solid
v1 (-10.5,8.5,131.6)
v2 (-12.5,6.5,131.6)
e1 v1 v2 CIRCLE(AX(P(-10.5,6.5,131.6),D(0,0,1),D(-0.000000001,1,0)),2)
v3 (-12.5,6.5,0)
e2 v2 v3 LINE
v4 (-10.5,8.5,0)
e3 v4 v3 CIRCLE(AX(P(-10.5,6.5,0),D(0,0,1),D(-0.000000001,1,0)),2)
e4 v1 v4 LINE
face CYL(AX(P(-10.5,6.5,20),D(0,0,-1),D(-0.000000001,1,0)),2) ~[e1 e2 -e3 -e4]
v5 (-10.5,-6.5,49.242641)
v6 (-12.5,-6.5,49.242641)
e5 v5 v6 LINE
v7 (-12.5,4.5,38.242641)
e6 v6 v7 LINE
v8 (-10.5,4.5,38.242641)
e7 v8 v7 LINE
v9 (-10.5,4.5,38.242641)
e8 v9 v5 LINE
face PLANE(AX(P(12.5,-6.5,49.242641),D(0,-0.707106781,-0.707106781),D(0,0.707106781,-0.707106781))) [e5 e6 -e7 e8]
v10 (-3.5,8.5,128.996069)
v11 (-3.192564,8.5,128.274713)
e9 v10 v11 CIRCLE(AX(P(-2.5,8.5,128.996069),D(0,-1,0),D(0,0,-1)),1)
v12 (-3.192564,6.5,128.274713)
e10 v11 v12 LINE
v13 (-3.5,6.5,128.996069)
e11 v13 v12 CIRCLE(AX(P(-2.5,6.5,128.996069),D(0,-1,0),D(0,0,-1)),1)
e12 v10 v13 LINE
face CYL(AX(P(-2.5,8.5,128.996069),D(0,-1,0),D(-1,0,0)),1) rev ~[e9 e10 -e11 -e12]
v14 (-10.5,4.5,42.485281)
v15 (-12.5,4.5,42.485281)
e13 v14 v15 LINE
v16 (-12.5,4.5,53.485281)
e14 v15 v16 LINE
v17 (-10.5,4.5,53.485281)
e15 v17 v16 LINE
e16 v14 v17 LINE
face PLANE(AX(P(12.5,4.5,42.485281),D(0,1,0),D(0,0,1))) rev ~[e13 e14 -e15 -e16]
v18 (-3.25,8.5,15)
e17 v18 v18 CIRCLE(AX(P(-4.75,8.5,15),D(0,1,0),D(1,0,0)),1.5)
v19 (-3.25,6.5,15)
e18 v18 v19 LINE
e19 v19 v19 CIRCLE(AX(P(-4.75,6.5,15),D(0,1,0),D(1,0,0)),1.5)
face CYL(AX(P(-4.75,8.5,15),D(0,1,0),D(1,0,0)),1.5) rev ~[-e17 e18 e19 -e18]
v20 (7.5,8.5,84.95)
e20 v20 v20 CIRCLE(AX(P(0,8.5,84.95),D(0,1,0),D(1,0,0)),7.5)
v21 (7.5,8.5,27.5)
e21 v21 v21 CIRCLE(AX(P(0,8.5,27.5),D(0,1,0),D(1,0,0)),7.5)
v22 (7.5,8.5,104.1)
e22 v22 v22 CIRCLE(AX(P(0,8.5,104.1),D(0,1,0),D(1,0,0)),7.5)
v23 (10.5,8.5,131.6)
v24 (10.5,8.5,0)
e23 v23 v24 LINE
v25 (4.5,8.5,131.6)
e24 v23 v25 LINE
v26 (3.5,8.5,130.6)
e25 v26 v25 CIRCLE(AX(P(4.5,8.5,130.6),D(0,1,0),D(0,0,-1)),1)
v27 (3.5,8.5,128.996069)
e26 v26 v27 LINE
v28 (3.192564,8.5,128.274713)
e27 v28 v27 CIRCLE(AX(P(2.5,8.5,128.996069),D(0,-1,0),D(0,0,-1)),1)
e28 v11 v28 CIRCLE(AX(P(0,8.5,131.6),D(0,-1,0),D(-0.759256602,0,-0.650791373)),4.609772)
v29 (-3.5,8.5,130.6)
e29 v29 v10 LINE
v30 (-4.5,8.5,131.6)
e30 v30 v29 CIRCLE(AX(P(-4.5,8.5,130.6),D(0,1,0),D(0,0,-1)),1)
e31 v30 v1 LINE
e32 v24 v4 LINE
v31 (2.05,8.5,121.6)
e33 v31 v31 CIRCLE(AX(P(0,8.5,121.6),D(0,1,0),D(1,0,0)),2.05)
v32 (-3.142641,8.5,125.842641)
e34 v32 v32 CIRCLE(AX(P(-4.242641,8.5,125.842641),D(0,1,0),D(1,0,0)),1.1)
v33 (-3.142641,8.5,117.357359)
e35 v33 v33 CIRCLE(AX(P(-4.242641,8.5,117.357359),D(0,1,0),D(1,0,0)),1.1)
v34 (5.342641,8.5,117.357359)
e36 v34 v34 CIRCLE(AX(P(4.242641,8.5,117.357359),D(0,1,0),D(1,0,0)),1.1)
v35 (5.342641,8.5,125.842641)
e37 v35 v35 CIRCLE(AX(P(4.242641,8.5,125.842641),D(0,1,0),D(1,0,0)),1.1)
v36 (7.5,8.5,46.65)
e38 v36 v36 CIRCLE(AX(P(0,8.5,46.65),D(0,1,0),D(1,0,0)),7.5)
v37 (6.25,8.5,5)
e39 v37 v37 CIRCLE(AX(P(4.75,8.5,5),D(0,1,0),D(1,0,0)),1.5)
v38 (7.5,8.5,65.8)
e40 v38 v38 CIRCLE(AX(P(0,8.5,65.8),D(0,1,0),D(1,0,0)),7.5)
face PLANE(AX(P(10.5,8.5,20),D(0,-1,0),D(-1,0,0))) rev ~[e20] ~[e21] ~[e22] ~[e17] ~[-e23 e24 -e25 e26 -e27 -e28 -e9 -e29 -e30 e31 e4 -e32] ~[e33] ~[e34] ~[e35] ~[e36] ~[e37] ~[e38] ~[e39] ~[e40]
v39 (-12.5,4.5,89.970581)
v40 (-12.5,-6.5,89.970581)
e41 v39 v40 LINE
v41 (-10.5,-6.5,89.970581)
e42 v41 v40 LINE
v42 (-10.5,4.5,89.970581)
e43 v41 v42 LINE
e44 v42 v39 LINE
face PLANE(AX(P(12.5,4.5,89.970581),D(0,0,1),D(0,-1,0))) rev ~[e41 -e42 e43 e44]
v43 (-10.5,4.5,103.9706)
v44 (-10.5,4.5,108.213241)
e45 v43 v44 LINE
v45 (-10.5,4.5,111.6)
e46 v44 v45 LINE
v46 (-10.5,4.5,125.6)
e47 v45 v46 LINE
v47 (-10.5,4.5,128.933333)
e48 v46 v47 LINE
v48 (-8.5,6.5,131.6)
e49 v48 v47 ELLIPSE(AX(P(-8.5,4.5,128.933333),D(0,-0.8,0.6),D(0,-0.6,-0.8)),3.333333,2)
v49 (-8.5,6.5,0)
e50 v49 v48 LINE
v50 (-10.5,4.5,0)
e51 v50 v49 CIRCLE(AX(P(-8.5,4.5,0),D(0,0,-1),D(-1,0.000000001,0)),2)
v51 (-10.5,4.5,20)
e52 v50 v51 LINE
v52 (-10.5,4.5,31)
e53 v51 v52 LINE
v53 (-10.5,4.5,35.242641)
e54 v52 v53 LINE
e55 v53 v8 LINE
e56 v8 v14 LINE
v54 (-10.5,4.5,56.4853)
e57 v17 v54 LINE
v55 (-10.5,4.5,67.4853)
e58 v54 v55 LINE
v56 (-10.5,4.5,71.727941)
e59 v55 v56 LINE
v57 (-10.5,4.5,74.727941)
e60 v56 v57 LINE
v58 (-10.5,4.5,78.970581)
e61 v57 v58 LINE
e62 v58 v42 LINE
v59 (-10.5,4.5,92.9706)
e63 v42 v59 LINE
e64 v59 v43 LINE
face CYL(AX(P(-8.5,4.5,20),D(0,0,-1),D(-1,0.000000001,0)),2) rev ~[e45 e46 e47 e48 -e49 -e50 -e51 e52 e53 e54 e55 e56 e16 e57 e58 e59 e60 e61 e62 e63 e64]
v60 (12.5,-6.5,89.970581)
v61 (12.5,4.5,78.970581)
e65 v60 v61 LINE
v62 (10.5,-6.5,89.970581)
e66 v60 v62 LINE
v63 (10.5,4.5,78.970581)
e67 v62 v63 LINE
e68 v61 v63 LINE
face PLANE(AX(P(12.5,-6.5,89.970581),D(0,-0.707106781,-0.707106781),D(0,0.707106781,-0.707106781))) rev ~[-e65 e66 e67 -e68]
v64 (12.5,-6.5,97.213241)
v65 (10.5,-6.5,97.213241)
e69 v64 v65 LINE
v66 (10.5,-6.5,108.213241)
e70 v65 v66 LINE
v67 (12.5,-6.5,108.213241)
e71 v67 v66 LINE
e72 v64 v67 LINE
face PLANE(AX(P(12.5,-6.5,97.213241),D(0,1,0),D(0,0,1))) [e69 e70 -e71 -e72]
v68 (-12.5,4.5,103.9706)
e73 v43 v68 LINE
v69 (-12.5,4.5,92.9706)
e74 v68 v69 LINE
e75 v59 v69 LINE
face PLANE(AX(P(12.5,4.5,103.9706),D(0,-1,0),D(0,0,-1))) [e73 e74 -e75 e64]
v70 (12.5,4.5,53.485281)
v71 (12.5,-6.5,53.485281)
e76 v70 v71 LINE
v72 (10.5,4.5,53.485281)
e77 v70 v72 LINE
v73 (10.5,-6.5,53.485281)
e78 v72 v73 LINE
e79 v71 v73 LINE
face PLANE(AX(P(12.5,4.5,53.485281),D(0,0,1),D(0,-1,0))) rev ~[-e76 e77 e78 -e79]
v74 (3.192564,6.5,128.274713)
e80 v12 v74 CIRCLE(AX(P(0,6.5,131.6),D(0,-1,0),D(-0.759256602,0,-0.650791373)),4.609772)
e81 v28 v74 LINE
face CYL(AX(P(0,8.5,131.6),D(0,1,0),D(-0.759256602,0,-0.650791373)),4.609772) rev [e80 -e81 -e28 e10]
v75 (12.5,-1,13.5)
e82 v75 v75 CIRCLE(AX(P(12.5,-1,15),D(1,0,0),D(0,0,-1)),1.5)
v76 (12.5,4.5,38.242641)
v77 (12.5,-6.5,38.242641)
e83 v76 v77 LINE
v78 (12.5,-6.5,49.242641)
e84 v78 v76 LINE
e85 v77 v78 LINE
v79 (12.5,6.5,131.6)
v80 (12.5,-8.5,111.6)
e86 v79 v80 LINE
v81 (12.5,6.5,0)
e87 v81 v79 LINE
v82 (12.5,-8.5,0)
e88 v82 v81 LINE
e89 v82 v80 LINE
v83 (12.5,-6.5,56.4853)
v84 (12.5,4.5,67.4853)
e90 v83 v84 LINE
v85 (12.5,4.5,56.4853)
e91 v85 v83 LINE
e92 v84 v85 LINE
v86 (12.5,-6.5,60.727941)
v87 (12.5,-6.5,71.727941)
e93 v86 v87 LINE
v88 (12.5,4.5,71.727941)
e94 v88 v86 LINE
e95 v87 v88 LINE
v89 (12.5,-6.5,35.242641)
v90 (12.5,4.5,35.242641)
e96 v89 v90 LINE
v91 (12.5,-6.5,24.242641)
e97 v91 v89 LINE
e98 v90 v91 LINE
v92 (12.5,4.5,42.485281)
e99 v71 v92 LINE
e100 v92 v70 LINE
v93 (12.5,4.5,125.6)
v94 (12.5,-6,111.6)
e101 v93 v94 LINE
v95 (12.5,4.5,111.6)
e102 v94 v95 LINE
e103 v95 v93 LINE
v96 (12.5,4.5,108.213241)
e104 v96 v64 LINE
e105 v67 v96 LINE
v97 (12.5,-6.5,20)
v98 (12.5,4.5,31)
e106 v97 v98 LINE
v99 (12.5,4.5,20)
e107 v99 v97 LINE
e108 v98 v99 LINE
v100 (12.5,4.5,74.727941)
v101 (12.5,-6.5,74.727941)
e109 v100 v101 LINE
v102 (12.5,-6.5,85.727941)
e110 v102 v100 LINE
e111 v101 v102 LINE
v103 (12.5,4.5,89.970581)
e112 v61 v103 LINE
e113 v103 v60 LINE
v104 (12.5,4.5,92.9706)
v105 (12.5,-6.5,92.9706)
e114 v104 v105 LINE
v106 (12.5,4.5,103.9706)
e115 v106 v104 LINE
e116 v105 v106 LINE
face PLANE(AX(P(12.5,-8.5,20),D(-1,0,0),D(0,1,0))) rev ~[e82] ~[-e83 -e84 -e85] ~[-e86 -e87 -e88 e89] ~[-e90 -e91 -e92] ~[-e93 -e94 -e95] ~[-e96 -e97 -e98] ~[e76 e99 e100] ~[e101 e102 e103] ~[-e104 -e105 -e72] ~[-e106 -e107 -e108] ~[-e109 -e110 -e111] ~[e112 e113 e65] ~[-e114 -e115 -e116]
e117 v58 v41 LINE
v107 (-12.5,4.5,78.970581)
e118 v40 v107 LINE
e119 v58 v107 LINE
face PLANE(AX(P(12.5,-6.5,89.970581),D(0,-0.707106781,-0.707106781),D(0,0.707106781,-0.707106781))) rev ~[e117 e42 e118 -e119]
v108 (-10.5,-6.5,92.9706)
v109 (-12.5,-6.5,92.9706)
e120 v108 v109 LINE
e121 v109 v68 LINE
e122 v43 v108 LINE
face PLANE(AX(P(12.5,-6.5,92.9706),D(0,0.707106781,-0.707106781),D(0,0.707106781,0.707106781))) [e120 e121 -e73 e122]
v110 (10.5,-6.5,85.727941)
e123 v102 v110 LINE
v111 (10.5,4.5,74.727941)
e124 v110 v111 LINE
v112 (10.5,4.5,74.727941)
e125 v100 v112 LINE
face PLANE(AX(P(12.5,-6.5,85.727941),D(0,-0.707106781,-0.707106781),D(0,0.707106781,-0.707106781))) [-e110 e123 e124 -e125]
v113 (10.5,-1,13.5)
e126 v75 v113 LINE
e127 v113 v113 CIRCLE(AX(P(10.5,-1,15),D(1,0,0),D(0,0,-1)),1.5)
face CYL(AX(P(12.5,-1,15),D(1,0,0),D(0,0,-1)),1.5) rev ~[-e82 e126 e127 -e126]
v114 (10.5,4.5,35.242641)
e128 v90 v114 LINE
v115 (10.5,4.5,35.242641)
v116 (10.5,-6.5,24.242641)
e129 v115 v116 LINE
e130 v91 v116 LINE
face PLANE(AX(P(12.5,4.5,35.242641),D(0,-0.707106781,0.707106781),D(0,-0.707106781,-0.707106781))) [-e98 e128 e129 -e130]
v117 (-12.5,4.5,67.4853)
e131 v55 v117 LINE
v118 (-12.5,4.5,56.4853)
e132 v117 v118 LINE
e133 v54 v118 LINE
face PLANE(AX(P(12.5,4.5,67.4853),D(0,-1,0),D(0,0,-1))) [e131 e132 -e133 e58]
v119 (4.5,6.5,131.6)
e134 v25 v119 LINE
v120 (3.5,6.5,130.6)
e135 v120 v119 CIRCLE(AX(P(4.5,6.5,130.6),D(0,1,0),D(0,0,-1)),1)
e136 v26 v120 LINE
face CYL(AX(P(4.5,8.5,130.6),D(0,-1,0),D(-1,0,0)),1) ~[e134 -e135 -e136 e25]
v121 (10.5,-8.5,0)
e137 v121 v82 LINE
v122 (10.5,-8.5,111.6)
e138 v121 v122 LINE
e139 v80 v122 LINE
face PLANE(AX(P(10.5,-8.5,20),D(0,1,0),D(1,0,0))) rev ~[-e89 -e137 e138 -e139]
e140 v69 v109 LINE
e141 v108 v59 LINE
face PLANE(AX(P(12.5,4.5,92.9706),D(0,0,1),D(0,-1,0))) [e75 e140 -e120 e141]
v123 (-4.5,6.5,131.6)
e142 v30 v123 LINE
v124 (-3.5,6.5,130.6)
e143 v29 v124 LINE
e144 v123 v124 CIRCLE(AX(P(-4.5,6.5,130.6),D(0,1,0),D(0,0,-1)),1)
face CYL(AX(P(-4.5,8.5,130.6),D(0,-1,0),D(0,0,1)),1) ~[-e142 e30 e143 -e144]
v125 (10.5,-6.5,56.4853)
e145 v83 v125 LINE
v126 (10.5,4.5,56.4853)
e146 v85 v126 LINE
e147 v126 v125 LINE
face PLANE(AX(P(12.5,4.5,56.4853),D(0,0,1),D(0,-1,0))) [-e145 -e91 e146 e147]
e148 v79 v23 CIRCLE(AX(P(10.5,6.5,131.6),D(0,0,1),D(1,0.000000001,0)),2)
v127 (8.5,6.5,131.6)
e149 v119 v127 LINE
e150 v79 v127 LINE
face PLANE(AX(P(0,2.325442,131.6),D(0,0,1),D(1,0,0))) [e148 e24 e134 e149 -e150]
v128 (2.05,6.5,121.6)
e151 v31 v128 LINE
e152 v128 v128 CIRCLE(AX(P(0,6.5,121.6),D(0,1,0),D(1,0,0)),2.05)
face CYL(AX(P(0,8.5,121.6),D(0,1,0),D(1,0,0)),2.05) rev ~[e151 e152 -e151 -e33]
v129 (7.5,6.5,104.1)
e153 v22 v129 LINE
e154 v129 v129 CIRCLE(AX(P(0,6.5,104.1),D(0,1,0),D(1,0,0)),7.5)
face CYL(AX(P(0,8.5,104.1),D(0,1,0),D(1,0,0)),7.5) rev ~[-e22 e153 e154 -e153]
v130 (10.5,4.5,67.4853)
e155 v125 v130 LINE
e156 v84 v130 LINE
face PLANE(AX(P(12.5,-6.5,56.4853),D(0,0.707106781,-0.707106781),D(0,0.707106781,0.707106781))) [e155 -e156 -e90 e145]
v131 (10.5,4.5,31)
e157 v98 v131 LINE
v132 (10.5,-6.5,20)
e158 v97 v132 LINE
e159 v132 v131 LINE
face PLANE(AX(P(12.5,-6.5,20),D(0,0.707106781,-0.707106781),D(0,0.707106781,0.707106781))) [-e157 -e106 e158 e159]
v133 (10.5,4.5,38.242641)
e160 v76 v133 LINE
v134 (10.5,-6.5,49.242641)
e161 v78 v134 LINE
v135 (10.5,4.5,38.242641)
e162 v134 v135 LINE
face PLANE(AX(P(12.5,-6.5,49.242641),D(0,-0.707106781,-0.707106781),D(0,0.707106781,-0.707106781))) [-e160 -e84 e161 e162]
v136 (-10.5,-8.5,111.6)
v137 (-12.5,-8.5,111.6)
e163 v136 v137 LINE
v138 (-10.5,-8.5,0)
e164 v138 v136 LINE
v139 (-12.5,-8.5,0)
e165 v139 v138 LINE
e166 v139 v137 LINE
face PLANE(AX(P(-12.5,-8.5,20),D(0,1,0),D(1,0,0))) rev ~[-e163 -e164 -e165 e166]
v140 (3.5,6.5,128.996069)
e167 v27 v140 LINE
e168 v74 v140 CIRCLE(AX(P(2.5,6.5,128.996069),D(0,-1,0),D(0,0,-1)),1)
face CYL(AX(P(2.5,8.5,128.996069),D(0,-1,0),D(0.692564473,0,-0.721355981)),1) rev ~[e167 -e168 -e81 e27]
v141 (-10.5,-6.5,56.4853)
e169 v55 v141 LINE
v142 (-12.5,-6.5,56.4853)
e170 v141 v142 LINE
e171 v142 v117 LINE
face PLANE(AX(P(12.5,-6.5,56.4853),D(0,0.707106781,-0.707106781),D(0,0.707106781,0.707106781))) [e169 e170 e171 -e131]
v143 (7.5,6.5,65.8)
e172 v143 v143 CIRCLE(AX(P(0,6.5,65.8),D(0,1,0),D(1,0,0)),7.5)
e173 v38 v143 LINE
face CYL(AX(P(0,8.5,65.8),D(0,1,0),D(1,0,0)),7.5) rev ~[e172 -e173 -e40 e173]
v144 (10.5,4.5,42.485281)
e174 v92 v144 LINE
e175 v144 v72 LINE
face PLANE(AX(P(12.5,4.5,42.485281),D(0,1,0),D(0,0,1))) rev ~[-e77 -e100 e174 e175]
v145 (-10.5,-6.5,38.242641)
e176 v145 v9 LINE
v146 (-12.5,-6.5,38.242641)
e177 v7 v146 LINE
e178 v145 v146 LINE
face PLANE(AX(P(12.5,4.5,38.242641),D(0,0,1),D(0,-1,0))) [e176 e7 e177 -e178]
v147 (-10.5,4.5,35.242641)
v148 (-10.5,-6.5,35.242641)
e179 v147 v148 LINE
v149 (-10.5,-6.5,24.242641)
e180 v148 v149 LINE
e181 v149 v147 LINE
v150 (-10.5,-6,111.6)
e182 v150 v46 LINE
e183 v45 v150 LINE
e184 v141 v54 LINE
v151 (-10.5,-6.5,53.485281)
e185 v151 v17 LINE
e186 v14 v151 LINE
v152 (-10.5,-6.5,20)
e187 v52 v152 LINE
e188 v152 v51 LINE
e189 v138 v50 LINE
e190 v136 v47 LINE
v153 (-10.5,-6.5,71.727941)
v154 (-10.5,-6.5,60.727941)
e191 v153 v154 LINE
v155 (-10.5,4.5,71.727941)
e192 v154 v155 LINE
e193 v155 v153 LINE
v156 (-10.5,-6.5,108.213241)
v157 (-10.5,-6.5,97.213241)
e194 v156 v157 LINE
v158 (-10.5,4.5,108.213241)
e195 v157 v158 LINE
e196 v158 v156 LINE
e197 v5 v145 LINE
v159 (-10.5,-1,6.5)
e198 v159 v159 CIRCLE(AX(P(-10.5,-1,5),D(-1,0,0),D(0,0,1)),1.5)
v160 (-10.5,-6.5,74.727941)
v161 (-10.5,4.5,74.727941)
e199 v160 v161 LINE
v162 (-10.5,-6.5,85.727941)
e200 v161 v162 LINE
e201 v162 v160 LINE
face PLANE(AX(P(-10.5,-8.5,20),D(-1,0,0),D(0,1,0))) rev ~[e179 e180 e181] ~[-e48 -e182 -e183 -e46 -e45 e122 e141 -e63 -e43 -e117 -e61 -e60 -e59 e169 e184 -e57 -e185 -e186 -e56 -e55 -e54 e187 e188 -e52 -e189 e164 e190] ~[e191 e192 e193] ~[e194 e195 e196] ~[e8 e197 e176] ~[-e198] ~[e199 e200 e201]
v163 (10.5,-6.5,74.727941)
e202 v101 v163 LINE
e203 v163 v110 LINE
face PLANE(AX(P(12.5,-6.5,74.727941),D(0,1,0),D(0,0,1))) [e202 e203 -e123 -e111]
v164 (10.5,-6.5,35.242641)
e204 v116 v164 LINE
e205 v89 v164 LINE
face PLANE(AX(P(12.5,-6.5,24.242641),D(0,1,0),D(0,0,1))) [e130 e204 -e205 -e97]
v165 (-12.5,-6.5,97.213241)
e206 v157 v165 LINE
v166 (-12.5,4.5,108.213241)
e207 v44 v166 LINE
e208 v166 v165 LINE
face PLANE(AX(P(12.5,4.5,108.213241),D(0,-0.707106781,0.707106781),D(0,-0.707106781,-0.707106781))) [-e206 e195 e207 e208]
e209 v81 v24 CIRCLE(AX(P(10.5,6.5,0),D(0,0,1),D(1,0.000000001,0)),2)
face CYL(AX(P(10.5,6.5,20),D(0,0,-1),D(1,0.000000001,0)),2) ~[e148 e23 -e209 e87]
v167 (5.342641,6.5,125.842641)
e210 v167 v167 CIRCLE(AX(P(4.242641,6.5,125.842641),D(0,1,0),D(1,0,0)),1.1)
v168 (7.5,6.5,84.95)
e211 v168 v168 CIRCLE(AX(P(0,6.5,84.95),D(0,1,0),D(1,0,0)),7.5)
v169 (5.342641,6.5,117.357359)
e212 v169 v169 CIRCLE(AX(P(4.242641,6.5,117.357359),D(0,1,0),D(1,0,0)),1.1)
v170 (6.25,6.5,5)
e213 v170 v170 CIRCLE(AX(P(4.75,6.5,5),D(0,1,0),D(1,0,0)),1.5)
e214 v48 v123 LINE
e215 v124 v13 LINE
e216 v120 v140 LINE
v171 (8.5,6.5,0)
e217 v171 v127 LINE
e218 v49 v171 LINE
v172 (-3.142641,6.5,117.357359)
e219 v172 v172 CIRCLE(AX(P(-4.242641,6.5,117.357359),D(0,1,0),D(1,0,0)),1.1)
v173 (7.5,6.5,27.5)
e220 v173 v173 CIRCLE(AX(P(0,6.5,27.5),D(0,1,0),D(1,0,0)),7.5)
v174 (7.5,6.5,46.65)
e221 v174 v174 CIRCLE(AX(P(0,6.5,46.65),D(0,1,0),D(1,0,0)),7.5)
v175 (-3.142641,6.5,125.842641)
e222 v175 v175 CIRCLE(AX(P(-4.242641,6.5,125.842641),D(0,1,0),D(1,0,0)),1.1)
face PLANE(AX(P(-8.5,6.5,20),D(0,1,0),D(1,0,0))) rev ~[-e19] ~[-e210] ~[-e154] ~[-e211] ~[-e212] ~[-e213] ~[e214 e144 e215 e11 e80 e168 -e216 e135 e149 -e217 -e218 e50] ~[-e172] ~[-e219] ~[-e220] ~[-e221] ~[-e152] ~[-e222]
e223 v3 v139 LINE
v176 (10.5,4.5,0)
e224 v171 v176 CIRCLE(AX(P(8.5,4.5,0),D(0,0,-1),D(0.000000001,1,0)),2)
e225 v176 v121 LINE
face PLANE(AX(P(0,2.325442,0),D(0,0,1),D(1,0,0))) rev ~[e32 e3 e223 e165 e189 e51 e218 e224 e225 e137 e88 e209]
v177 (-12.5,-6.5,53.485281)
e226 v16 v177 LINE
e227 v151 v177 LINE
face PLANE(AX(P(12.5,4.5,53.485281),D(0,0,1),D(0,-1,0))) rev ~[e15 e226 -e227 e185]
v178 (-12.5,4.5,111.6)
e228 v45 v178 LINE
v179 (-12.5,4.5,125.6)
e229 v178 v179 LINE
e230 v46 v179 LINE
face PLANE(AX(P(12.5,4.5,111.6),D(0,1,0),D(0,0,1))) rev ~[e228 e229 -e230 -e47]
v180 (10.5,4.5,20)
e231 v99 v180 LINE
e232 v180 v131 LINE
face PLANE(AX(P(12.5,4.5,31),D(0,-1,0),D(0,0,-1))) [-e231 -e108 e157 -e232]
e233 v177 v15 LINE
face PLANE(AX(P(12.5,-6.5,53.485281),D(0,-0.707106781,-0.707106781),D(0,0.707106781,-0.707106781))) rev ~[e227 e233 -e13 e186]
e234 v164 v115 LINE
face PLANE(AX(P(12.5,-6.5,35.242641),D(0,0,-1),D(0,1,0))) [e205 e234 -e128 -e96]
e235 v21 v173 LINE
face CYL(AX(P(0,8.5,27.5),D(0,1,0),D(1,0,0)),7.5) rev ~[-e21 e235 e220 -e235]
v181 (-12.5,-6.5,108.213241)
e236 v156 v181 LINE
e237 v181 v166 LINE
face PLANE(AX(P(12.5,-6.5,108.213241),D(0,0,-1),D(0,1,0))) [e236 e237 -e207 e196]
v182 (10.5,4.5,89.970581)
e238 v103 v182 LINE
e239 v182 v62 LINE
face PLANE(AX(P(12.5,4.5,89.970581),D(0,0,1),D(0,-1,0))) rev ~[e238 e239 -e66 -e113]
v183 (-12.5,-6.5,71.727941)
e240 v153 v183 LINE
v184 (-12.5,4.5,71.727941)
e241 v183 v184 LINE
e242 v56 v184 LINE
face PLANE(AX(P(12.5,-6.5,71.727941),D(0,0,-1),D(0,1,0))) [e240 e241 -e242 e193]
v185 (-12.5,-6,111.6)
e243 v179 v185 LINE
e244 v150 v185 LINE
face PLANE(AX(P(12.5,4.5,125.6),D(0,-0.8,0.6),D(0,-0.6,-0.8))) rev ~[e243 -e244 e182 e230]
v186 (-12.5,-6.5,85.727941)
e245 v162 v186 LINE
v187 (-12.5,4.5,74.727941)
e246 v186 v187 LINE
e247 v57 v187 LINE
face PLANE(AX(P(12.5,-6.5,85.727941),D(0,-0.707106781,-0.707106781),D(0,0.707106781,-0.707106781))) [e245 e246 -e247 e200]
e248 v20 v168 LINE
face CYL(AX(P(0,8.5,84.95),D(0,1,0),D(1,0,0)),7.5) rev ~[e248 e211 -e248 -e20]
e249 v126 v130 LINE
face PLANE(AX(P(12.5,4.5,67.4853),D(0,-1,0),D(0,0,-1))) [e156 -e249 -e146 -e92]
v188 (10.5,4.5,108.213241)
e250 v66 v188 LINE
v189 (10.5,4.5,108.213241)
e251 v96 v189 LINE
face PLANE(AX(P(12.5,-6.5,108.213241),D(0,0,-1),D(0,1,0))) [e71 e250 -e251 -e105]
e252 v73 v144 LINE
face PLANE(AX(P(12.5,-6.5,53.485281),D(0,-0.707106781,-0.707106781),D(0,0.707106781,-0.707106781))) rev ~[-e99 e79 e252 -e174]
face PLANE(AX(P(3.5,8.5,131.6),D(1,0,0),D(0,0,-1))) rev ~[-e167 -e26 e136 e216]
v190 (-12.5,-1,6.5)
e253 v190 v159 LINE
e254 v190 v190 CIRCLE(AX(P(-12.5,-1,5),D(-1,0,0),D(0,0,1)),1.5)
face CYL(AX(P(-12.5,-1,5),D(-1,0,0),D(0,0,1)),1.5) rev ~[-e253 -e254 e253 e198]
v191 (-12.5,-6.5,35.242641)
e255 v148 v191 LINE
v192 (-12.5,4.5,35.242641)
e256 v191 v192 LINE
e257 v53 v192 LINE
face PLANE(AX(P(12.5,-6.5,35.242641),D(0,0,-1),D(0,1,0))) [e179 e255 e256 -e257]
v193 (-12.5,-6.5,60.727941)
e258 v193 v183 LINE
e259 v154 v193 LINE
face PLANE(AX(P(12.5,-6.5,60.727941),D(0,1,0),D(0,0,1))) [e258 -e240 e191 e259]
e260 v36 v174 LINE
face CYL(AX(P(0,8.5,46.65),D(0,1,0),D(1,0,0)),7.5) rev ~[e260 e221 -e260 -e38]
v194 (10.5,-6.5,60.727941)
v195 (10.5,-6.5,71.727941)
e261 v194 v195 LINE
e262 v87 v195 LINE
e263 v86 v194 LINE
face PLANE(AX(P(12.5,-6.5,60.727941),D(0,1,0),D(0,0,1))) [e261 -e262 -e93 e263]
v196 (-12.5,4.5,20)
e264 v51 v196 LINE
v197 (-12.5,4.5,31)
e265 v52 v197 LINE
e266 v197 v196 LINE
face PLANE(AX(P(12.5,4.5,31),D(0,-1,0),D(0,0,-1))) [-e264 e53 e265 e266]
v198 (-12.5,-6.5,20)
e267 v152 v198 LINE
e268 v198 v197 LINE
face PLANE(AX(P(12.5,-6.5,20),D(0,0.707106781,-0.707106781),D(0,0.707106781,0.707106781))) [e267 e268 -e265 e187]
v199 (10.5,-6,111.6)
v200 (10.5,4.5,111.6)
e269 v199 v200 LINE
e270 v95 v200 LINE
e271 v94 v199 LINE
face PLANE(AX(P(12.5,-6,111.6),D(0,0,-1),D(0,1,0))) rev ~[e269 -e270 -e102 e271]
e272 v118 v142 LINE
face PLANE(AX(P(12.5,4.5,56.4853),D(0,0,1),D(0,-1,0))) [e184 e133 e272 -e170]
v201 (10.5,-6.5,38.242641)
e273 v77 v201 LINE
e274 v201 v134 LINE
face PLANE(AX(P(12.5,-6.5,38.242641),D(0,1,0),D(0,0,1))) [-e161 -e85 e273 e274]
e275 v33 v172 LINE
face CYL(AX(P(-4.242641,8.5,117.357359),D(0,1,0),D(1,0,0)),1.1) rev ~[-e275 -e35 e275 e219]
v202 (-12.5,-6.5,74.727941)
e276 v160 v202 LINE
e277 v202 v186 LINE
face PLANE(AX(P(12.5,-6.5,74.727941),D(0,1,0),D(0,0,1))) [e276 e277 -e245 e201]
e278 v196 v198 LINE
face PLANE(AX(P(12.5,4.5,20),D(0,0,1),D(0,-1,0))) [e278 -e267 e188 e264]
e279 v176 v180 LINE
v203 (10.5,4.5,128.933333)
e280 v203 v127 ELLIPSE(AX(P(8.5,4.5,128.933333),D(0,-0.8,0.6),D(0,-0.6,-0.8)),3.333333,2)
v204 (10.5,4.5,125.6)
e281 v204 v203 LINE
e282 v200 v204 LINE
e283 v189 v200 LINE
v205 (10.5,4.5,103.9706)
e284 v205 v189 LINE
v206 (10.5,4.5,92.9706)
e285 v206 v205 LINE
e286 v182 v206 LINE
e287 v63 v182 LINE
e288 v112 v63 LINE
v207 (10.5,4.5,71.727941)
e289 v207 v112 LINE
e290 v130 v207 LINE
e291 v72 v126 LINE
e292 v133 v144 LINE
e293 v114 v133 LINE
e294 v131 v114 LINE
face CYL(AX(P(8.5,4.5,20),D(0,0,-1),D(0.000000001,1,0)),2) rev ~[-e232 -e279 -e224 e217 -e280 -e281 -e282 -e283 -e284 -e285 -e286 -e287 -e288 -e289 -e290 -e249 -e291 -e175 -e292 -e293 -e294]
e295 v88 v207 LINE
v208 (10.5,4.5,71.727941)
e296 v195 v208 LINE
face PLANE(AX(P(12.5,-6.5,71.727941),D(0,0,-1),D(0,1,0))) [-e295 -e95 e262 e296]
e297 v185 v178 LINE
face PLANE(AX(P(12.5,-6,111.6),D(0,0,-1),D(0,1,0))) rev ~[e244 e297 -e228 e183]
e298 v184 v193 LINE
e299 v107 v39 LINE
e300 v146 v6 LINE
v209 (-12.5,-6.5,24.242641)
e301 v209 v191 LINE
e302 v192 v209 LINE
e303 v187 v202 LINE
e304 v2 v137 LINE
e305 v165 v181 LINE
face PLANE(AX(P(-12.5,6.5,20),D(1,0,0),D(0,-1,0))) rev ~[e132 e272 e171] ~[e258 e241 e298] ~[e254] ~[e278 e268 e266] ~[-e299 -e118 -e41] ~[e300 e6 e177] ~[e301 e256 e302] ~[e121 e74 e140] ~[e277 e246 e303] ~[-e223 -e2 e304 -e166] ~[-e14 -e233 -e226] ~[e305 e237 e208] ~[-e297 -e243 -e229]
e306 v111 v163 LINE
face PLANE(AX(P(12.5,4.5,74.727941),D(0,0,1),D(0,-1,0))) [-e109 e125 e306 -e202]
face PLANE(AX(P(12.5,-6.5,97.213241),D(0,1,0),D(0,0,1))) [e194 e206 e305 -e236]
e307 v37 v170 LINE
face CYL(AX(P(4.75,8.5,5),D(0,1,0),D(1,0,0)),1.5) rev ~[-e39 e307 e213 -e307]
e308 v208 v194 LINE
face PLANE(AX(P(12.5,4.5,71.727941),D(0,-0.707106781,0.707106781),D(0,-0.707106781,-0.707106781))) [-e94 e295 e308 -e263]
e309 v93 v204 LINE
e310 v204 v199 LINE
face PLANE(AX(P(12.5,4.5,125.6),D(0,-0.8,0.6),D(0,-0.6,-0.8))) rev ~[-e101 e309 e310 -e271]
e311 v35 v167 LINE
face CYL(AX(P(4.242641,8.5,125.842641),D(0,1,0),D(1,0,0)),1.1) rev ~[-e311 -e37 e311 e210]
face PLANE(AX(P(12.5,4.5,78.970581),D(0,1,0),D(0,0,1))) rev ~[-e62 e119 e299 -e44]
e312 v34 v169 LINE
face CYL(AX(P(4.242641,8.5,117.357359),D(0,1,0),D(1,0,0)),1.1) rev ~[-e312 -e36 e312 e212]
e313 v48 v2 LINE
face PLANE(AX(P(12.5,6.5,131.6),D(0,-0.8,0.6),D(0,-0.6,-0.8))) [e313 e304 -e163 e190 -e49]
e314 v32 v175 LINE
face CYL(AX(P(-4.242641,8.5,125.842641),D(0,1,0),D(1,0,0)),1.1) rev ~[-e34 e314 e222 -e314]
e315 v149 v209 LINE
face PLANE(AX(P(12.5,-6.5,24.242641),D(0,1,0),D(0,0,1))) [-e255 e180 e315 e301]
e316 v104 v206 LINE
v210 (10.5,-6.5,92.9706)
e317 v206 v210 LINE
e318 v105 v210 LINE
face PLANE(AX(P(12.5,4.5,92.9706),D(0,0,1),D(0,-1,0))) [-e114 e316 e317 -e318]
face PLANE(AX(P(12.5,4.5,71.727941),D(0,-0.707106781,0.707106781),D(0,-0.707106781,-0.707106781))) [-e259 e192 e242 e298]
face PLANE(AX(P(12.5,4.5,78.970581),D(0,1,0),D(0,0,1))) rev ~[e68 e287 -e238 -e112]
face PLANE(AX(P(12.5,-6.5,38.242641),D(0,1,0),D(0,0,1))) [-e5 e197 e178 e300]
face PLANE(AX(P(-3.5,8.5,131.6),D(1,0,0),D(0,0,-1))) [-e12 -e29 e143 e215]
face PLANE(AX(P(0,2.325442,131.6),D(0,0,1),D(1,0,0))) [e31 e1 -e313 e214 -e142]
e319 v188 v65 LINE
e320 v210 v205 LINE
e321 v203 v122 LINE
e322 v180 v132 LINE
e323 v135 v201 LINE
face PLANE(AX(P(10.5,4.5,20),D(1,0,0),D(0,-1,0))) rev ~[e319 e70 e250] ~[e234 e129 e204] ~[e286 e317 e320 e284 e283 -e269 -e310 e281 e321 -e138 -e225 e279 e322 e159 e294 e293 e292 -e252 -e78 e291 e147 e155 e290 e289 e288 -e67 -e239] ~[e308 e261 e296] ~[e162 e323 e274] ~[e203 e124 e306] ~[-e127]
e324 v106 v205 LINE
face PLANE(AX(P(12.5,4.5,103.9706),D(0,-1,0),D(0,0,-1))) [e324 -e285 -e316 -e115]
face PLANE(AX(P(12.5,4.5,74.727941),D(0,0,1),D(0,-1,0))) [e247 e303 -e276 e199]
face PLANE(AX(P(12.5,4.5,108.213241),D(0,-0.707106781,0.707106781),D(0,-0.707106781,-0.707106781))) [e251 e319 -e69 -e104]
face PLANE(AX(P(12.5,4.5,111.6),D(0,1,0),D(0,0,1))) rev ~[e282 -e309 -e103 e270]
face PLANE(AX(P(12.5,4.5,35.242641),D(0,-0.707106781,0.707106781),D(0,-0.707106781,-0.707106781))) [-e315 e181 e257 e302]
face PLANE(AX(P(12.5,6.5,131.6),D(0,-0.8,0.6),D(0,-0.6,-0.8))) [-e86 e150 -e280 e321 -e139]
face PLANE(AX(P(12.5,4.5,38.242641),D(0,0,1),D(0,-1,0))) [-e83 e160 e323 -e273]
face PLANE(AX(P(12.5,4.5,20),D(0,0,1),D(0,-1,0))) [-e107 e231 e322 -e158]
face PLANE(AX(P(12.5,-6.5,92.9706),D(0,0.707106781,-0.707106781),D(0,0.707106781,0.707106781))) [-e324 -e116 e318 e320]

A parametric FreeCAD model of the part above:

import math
import FreeCAD as App
import Part
import Sketcher


def edges_at(feature, points):
    """Names of the edges that pass closest to the given points."""
    edges = feature.Shape.Edges
    near = lambda p: min(range(len(edges)), key=lambda i: edges[i].distToShape(Part.Vertex(*p))[0])
    return sorted({f"Edge{near(p) + 1}" for p in points})

doc = App.newDocument("Part")
body = doc.addObject("PartDesign::Body", "Body")

# Sketch on XY plane
sketch1 = body.newObject("Sketcher::SketchObject", "Sketch")
sketch1.AttachmentSupport = (doc.getObject("XY_Plane"), [""])
sketch1.MapMode = "FlatFace"
sketch1.addGeometry([
    Part.LineSegment(App.Vector(-12.5, -8.5, 0), App.Vector(-10.5, -8.5, 0)),  # 0
    Part.LineSegment(App.Vector(-10.5, -8.5, 0), App.Vector(-10.5, 4.5, 0)),  # 1
    Part.ArcOfCircle(Part.Circle(App.Vector(-8.5, 4.5, 0), App.Vector(0, 0, 1), 2), math.radians(90), math.radians(180)),  # 2
    Part.LineSegment(App.Vector(-8.5, 6.5, 0), App.Vector(8.5, 6.5, 0)),  # 3
    Part.ArcOfCircle(Part.Circle(App.Vector(8.5, 4.5, 0), App.Vector(0, 0, 1), 2), math.radians(0), math.radians(90)),  # 4
    Part.LineSegment(App.Vector(10.5, 4.5, 0), App.Vector(10.5, -8.5, 0)),  # 5
    Part.LineSegment(App.Vector(10.5, -8.5, 0), App.Vector(12.5, -8.5, 0)),  # 6
    Part.LineSegment(App.Vector(12.5, -8.5, 0), App.Vector(12.5, 6.5, 0)),  # 7
    Part.ArcOfCircle(Part.Circle(App.Vector(10.5, 6.5, 0), App.Vector(0, 0, 1), 2), math.radians(0), math.radians(90)),  # 8
    Part.LineSegment(App.Vector(10.5, 8.5, 0), App.Vector(-10.5, 8.5, 0)),  # 9
    Part.ArcOfCircle(Part.Circle(App.Vector(-10.5, 6.5, 0), App.Vector(0, 0, 1), 2), math.radians(90), math.radians(180)),  # 10
    Part.LineSegment(App.Vector(-12.5, 6.5, 0), App.Vector(-12.5, -8.5, 0)),  # 11
], False)
sketch1.addConstraint([
    Sketcher.Constraint("Coincident", 0, 2, 1, 1),
    Sketcher.Constraint("Tangent", 1, 2, 2, 2),
    Sketcher.Constraint("Tangent", 2, 1, 3, 1),
    Sketcher.Constraint("Tangent", 3, 2, 4, 2),
    Sketcher.Constraint("Tangent", 4, 1, 5, 1),
    Sketcher.Constraint("Coincident", 5, 2, 6, 1),
    Sketcher.Constraint("Coincident", 6, 2, 7, 1),
    Sketcher.Constraint("Tangent", 7, 2, 8, 1),
    Sketcher.Constraint("Tangent", 8, 2, 9, 1),
    Sketcher.Constraint("Tangent", 9, 2, 10, 1),
    Sketcher.Constraint("Tangent", 10, 2, 11, 1),
    Sketcher.Constraint("Coincident", 11, 2, 0, 1),
    Sketcher.Constraint("Horizontal", 0),
    Sketcher.Constraint("Vertical", 1),
    Sketcher.Constraint("Horizontal", 3),
    Sketcher.Constraint("Vertical", 5),
    Sketcher.Constraint("Horizontal", 6),
    Sketcher.Constraint("Vertical", 7),
    Sketcher.Constraint("Horizontal", 9),
    Sketcher.Constraint("Vertical", 11),
    Sketcher.Constraint("Equal", 2, 4),
    Sketcher.Constraint("Equal", 4, 8),
    Sketcher.Constraint("Equal", 8, 10),
    Sketcher.Constraint("Symmetric", 0, 2, 8, 2, -1, 1),
    Sketcher.Constraint("Symmetric", 5, 2, 9, 2, -1, 1),
    Sketcher.Constraint("Horizontal", 10, 3, 2, 1),
    Sketcher.Constraint("Vertical", 10, 3, 0, 2),
    Sketcher.Constraint("Radius", 2, 2.0),
    Sketcher.Constraint("DistanceX", 3, 1, 3, 2, 17.0),
    Sketcher.Constraint("DistanceY", 1, 1, 1, 2, 13.0),
])
pad1 = body.newObject("PartDesign::Pad", "Pad")
pad1.Profile = sketch1
pad1.Length = 20

# Sketch on YZ plane
sketch2 = body.newObject("Sketcher::SketchObject", "Sketch001")
sketch2.AttachmentSupport = (doc.getObject("YZ_Plane"), [""])
sketch2.MapMode = "FlatFace"
sketch2.AttachmentOffset = App.Placement(App.Vector(0, 0, 12.5), App.Rotation())
sketch2.addGeometry(Part.Circle(App.Vector(-1, 15, 0), App.Vector(0, 0, 1), 1.5), False)
sketch2.addConstraint([
    Sketcher.Constraint("Diameter", 0, 3.0),
    Sketcher.Constraint("DistanceX", 0, 3, -1, 1, 1.0),
    Sketcher.Constraint("DistanceY", -1, 1, 0, 3, 15.0),
])
pocket1 = body.newObject("PartDesign::Pocket", "Pocket")
pocket1.Profile = sketch2
pocket1.Type = "TwoLengths"
pocket1.Length = 1
pocket1.Length2 = 2
pocket1.Reversed = True

# Sketch on YZ plane
sketch3 = body.newObject("Sketcher::SketchObject", "Sketch002")
sketch3.AttachmentSupport = (doc.getObject("YZ_Plane"), [""])
sketch3.MapMode = "FlatFace"
sketch3.AttachmentOffset = App.Placement(App.Vector(0, 0, -12.5), App.Rotation())
sketch3.addGeometry(Part.Circle(App.Vector(-1, 5, 0), App.Vector(0, 0, 1), 1.5), False)
sketch3.addConstraint([
    Sketcher.Constraint("Diameter", 0, 3.0),
    Sketcher.Constraint("DistanceX", 0, 3, -1, 1, 1.0),
    Sketcher.Constraint("DistanceY", -1, 1, 0, 3, 5.0),
])
pocket2 = body.newObject("PartDesign::Pocket", "Pocket001")
pocket2.Profile = sketch3
pocket2.Length = 2
pocket2.Reversed = True

# Sketch on XZ plane
sketch4 = body.newObject("Sketcher::SketchObject", "Sketch003")
sketch4.AttachmentSupport = (doc.getObject("XZ_Plane"), [""])
sketch4.MapMode = "FlatFace"
sketch4.AttachmentOffset = App.Placement(App.Vector(0, 0, -8.5), App.Rotation())
sketch4.addGeometry([
    Part.Circle(App.Vector(-4.8, 15, 0), App.Vector(0, 0, 1), 1.5),
    Part.Circle(App.Vector(4.8, 5, 0), App.Vector(0, 0, 1), 1.5),
], False)
sketch4.addConstraint([
    Sketcher.Constraint("Equal", 0, 1),
    Sketcher.Constraint("Diameter", 0, 3.0),
    Sketcher.Constraint("DistanceY", -1, 1, 0, 3, 15.0),
    Sketcher.Constraint("DistanceY", -1, 1, 1, 3, 5.0),
    Sketcher.Constraint("DistanceX", 0, 3, 1, 3, 9.5),
    Sketcher.Constraint("DistanceX", 0, 3, -1, 1, 4.75),
])
pocket3 = body.newObject("PartDesign::Pocket", "Pocket002")
pocket3.Profile = sketch4
pocket3.Type = "ThroughAll"
pocket3.Midplane = True

# Sketch on XY plane
sketch5 = body.newObject("Sketcher::SketchObject", "Sketch004")
sketch5.AttachmentSupport = (doc.getObject("XY_Plane"), [""])
sketch5.MapMode = "FlatFace"
sketch5.AttachmentOffset = App.Placement(App.Vector(0, 0, 20), App.Rotation())
sketch5.addGeometry([
    Part.LineSegment(App.Vector(-12.5, 6.5, 0), App.Vector(-12.5, -8.5, 0)),  # 0
    Part.LineSegment(App.Vector(-12.5, -8.5, 0), App.Vector(-10.5, -8.5, 0)),  # 1
    Part.LineSegment(App.Vector(-10.5, -8.5, 0), App.Vector(-10.5, 4.5, 0)),  # 2
    Part.ArcOfCircle(Part.Circle(App.Vector(-8.5, 4.5, 0), App.Vector(0, 0, 1), 2), math.radians(90), math.radians(180)),  # 3
    Part.LineSegment(App.Vector(-8.5, 6.5, 0), App.Vector(8.5, 6.5, 0)),  # 4
    Part.ArcOfCircle(Part.Circle(App.Vector(8.5, 4.5, 0), App.Vector(0, 0, 1), 2), math.radians(0), math.radians(90)),  # 5
    Part.LineSegment(App.Vector(10.5, 4.5, 0), App.Vector(10.5, -8.5, 0)),  # 6
    Part.LineSegment(App.Vector(10.5, -8.5, 0), App.Vector(12.5, -8.5, 0)),  # 7
    Part.LineSegment(App.Vector(12.5, -8.5, 0), App.Vector(12.5, 6.5, 0)),  # 8
    Part.ArcOfCircle(Part.Circle(App.Vector(10.5, 6.5, 0), App.Vector(0, 0, 1), 2), math.radians(0), math.radians(90)),  # 9
    Part.LineSegment(App.Vector(10.5, 8.5, 0), App.Vector(-10.5, 8.5, 0)),  # 10
    Part.ArcOfCircle(Part.Circle(App.Vector(-10.5, 6.5, 0), App.Vector(0, 0, 1), 2), math.radians(90), math.radians(180)),  # 11
], False)
sketch5.addConstraint([
    Sketcher.Constraint("Coincident", 0, 2, 1, 1),
    Sketcher.Constraint("Coincident", 1, 2, 2, 1),
    Sketcher.Constraint("Tangent", 2, 2, 3, 2),
    Sketcher.Constraint("Tangent", 3, 1, 4, 1),
    Sketcher.Constraint("Tangent", 4, 2, 5, 2),
    Sketcher.Constraint("Tangent", 5, 1, 6, 1),
    Sketcher.Constraint("Coincident", 6, 2, 7, 1),
    Sketcher.Constraint("Coincident", 7, 2, 8, 1),
    Sketcher.Constraint("Tangent", 8, 2, 9, 1),
    Sketcher.Constraint("Tangent", 9, 2, 10, 1),
    Sketcher.Constraint("Tangent", 10, 2, 11, 1),
    Sketcher.Constraint("Tangent", 11, 2, 0, 1),
    Sketcher.Constraint("Vertical", 0),
    Sketcher.Constraint("Horizontal", 1),
    Sketcher.Constraint("Vertical", 2),
    Sketcher.Constraint("Horizontal", 4),
    Sketcher.Constraint("Vertical", 6),
    Sketcher.Constraint("Horizontal", 7),
    Sketcher.Constraint("Vertical", 8),
    Sketcher.Constraint("Horizontal", 10),
    Sketcher.Constraint("Equal", 3, 5),
    Sketcher.Constraint("Equal", 5, 9),
    Sketcher.Constraint("Equal", 9, 11),
    Sketcher.Constraint("Symmetric", 1, 2, 9, 2, -1, 1),
    Sketcher.Constraint("Symmetric", 6, 2, 10, 2, -1, 1),
    Sketcher.Constraint("Horizontal", 11, 3, 3, 1),
    Sketcher.Constraint("Vertical", 11, 3, 1, 2),
    Sketcher.Constraint("Radius", 3, 2.0),
    Sketcher.Constraint("DistanceX", 4, 1, 4, 2, 17.0),
    Sketcher.Constraint("DistanceY", 0, 2, 0, 1, 15.0),
])
pad2 = body.newObject("PartDesign::Pad", "Pad001")
pad2.Profile = sketch5
pad2.Length = 111.6

# Sketch on XZ plane
sketch6 = body.newObject("Sketcher::SketchObject", "Sketch005")
sketch6.AttachmentSupport = (doc.getObject("XZ_Plane"), [""])
sketch6.MapMode = "FlatFace"
sketch6.AttachmentOffset = App.Placement(App.Vector(0, 0, -8.5), App.Rotation())
sketch6.addGeometry(Part.Circle(App.Vector(0, 104, 0), App.Vector(0, 0, 1), 8), False)
sketch6.addConstraint([
    Sketcher.Constraint("PointOnObject", 0, 3, -2),
    Sketcher.Constraint("Diameter", 0, 15.0),
    Sketcher.Constraint("DistanceY", -1, 1, 0, 3, 104.1),
])
pocket4 = body.newObject("PartDesign::Pocket", "Pocket003")
pocket4.Profile = sketch6
pocket4.Type = "ThroughAll"
pocket4.Reversed = True
doc.recompute()

linearpattern = body.newObject("PartDesign::LinearPattern", "LinearPattern")
linearpattern.Originals = [pocket4]
linearpattern.Direction = (doc.getObject("Z_Axis"), [""])
linearpattern.Mode = "offset"
linearpattern.Offset = 19.15
linearpattern.Occurrences = 5
linearpattern.Reversed = True
body.Tip = linearpattern

# Sketch on XZ plane
sketch7 = body.newObject("Sketcher::SketchObject", "Sketch006")
sketch7.AttachmentSupport = (doc.getObject("XZ_Plane"), [""])
sketch7.MapMode = "FlatFace"
sketch7.AttachmentOffset = App.Placement(App.Vector(0, 0, -8.5), App.Rotation())
sketch7.addGeometry([
    Part.Circle(App.Vector(4.2, 117.4, 0), App.Vector(0, 0, 1), 1.1),
    Part.Circle(App.Vector(4.2, 125.8, 0), App.Vector(0, 0, 1), 1.1),
    Part.Circle(App.Vector(-4.2, 125.8, 0), App.Vector(0, 0, 1), 1.1),
    Part.Circle(App.Vector(-4.2, 117.4, 0), App.Vector(0, 0, 1), 1.1),
], False)
sketch7.addConstraint([
    Sketcher.Constraint("Equal", 0, 1),
    Sketcher.Constraint("Equal", 1, 2),
    Sketcher.Constraint("Equal", 2, 3),
    Sketcher.Constraint("Symmetric", 1, 3, 2, 3, -2),
    Sketcher.Constraint("Symmetric", 0, 3, 3, 3, -2),
    Sketcher.Constraint("Vertical", 0, 3, 1, 3),
    Sketcher.Constraint("Diameter", 0, 2.2),
    Sketcher.Constraint("DistanceX", -1, 1, 0, 3, 4.242641),
    Sketcher.Constraint("DistanceY", -1, 1, 0, 3, 117.357359),
    Sketcher.Constraint("DistanceY", -1, 1, 1, 3, 125.842641),
])
pocket5 = body.newObject("PartDesign::Pocket", "Pocket004")
pocket5.Profile = sketch7
pocket5.Type = "ThroughAll"
pocket5.Reversed = True

# Sketch on YZ plane
sketch8 = body.newObject("Sketcher::SketchObject", "Sketch007")
sketch8.AttachmentSupport = (doc.getObject("YZ_Plane"), [""])
sketch8.MapMode = "FlatFace"
sketch8.AttachmentOffset = App.Placement(App.Vector(0, 0, 12.5), App.Rotation())
sketch8.addGeometry([
    Part.LineSegment(App.Vector(-8, 112, 0), App.Vector(6, 132, 0)),
    Part.LineSegment(App.Vector(6, 132, 0), App.Vector(-8, 132, 0)),
    Part.LineSegment(App.Vector(-8, 132, 0), App.Vector(-8, 112, 0)),
], False)
sketch8.addConstraint([
    Sketcher.Constraint("Coincident", 0, 2, 1, 1),
    Sketcher.Constraint("Coincident", 1, 2, 2, 1),
    Sketcher.Constraint("Coincident", 2, 2, 0, 1),
    Sketcher.Constraint("Horizontal", 1),
    Sketcher.Constraint("Vertical", 2),
    Sketcher.Constraint("DistanceX", 1, 2, 1, 1, 15.0),
    Sketcher.Constraint("DistanceY", 2, 2, 2, 1, 20.0),
    Sketcher.Constraint("DistanceX", -1, 1, 0, 2, 6.5),
    Sketcher.Constraint("DistanceY", -1, 1, 0, 2, 131.6),
])
pocket6 = body.newObject("PartDesign::Pocket", "Pocket005")
pocket6.Profile = sketch8
pocket6.Type = "ThroughAll"

# Sketch on YZ plane
sketch9 = body.newObject("Sketcher::SketchObject", "Sketch008")
sketch9.AttachmentSupport = (doc.getObject("YZ_Plane"), [""])
sketch9.MapMode = "FlatFace"
sketch9.AttachmentOffset = App.Placement(App.Vector(0, 0, 12.5), App.Rotation())
sketch9.addGeometry([
    Part.LineSegment(App.Vector(4, 20, 0), App.Vector(4, 31, 0)),
    Part.LineSegment(App.Vector(4, 31, 0), App.Vector(-6, 20, 0)),
    Part.LineSegment(App.Vector(-6, 20, 0), App.Vector(4, 20, 0)),
], False)
sketch9.addConstraint([
    Sketcher.Constraint("Coincident", 0, 2, 1, 1),
    Sketcher.Constraint("Coincident", 1, 2, 2, 1),
    Sketcher.Constraint("Coincident", 2, 2, 0, 1),
    Sketcher.Constraint("Vertical", 0),
    Sketcher.Constraint("Horizontal", 2),
    Sketcher.Constraint("Equal", 2, 0),
    Sketcher.Constraint("DistanceX", 2, 1, 2, 2, 11.0),
    Sketcher.Constraint("DistanceY", -1, 1, 0, 2, 31.0),
    Sketcher.Constraint("DistanceX", -1, 1, 0, 2, 4.5),
])
pocket7 = body.newObject("PartDesign::Pocket", "Pocket006")
pocket7.Profile = sketch9
pocket7.Type = "ThroughAll"

# Sketch on YZ plane
sketch10 = body.newObject("Sketcher::SketchObject", "Sketch009")
sketch10.AttachmentSupport = (doc.getObject("YZ_Plane"), [""])
sketch10.MapMode = "FlatFace"
sketch10.AttachmentOffset = App.Placement(App.Vector(0, 0, 12.5), App.Rotation())
sketch10.addGeometry([
    Part.LineSegment(App.Vector(-6, 24, 0), App.Vector(4, 35, 0)),
    Part.LineSegment(App.Vector(4, 35, 0), App.Vector(-6, 35, 0)),
    Part.LineSegment(App.Vector(-6, 35, 0), App.Vector(-6, 24, 0)),
], False)
sketch10.addConstraint([
    Sketcher.Constraint("Coincident", 0, 2, 1, 1),
    Sketcher.Constraint("Coincident", 1, 2, 2, 1),
    Sketcher.Constraint("Coincident", 2, 2, 0, 1),
    Sketcher.Constraint("Horizontal", 1),
    Sketcher.Constraint("Vertical", 2),
    Sketcher.Constraint("Equal", 1, 2),
    Sketcher.Constraint("DistanceX", 1, 2, 1, 1, 11.0),
    Sketcher.Constraint("DistanceX", -1, 1, 0, 2, 4.5),
    Sketcher.Constraint("DistanceY", -1, 1, 0, 2, 35.242641),
])
pocket8 = body.newObject("PartDesign::Pocket", "Pocket007")
pocket8.Profile = sketch10
pocket8.Type = "ThroughAll"

# Sketch on YZ plane
sketch11 = body.newObject("Sketcher::SketchObject", "Sketch010")
sketch11.AttachmentSupport = (doc.getObject("YZ_Plane"), [""])
sketch11.MapMode = "FlatFace"
sketch11.AttachmentOffset = App.Placement(App.Vector(0, 0, 12.5), App.Rotation())
sketch11.addGeometry([
    Part.LineSegment(App.Vector(-6, 38, 0), App.Vector(4, 38, 0)),
    Part.LineSegment(App.Vector(4, 38, 0), App.Vector(-6, 49, 0)),
    Part.LineSegment(App.Vector(-6, 49, 0), App.Vector(-6, 38, 0)),
], False)
sketch11.addConstraint([
    Sketcher.Constraint("Coincident", 0, 2, 1, 1),
    Sketcher.Constraint("Coincident", 1, 2, 2, 1),
    Sketcher.Constraint("Coincident", 2, 2, 0, 1),
    Sketcher.Constraint("Horizontal", 0),
    Sketcher.Constraint("Vertical", 2),
    Sketcher.Constraint("Equal", 0, 2),
    Sketcher.Constraint("DistanceX", 0, 1, 0, 2, 11.0),
    Sketcher.Constraint("DistanceX", -1, 1, 0, 2, 4.5),
    Sketcher.Constraint("DistanceY", -1, 1, 0, 2, 38.242641),
])
pocket9 = body.newObject("PartDesign::Pocket", "Pocket008")
pocket9.Profile = sketch11
pocket9.Type = "ThroughAll"

# Sketch on YZ plane
sketch12 = body.newObject("Sketcher::SketchObject", "Sketch011")
sketch12.AttachmentSupport = (doc.getObject("YZ_Plane"), [""])
sketch12.MapMode = "FlatFace"
sketch12.AttachmentOffset = App.Placement(App.Vector(0, 0, 12.5), App.Rotation())
sketch12.addGeometry([
    Part.LineSegment(App.Vector(-6, 53, 0), App.Vector(4, 42, 0)),
    Part.LineSegment(App.Vector(4, 42, 0), App.Vector(4, 53, 0)),
    Part.LineSegment(App.Vector(4, 53, 0), App.Vector(-6, 53, 0)),
], False)
sketch12.addConstraint([
    Sketcher.Constraint("Coincident", 0, 2, 1, 1),
    Sketcher.Constraint("Coincident", 1, 2, 2, 1),
    Sketcher.Constraint("Coincident", 2, 2, 0, 1),
    Sketcher.Constraint("Vertical", 1),
    Sketcher.Constraint("Horizontal", 2),
    Sketcher.Constraint("Equal", 2, 1),
    Sketcher.Constraint("DistanceX", 2, 2, 2, 1, 11.0),
    Sketcher.Constraint("DistanceX", -1, 1, 0, 2, 4.5),
    Sketcher.Constraint("DistanceY", -1, 1, 0, 2, 42.485281),
])
pocket10 = body.newObject("PartDesign::Pocket", "Pocket009")
pocket10.Profile = sketch12
pocket10.Type = "ThroughAll"
doc.recompute()

linearpattern2 = body.newObject("PartDesign::LinearPattern", "LinearPattern001")
linearpattern2.Originals = [pocket7]
linearpattern2.Direction = (doc.getObject("Z_Axis"), [""])
linearpattern2.Mode = "offset"
linearpattern2.Offset = 36.4853
linearpattern2.Occurrences = 3
body.Tip = linearpattern2
doc.recompute()

linearpattern3 = body.newObject("PartDesign::LinearPattern", "LinearPattern002")
linearpattern3.Originals = [pocket8]
linearpattern3.Direction = (doc.getObject("Z_Axis"), [""])
linearpattern3.Mode = "offset"
linearpattern3.Offset = 36.4853
linearpattern3.Occurrences = 3
body.Tip = linearpattern3
doc.recompute()

linearpattern4 = body.newObject("PartDesign::LinearPattern", "LinearPattern003")
linearpattern4.Originals = [pocket9]
linearpattern4.Direction = (doc.getObject("Z_Axis"), [""])
linearpattern4.Mode = "offset"
linearpattern4.Offset = 36.4853
linearpattern4.Occurrences = 2
body.Tip = linearpattern4
doc.recompute()

linearpattern5 = body.newObject("PartDesign::LinearPattern", "LinearPattern004")
linearpattern5.Originals = [pocket10]
linearpattern5.Direction = (doc.getObject("Z_Axis"), [""])
linearpattern5.Mode = "offset"
linearpattern5.Offset = 36.4853
linearpattern5.Occurrences = 2
body.Tip = linearpattern5

# Sketch on YZ plane
sketch13 = body.newObject("Sketcher::SketchObject", "Sketch012")
sketch13.AttachmentSupport = (doc.getObject("YZ_Plane"), [""])
sketch13.MapMode = "FlatFace"
sketch13.AttachmentOffset = App.Placement(App.Vector(0, 0, 12.5), App.Rotation())
sketch13.addGeometry([
    Part.LineSegment(App.Vector(-6, 112, 0), App.Vector(4, 112, 0)),
    Part.LineSegment(App.Vector(4, 112, 0), App.Vector(4, 126, 0)),
    Part.LineSegment(App.Vector(4, 126, 0), App.Vector(-6, 112, 0)),
], False)
sketch13.addConstraint([
    Sketcher.Constraint("Coincident", 0, 2, 1, 1),
    Sketcher.Constraint("Coincident", 1, 2, 2, 1),
    Sketcher.Constraint("Coincident", 2, 2, 0, 1),
    Sketcher.Constraint("Horizontal", 0),
    Sketcher.Constraint("Vertical", 1),
    Sketcher.Constraint("DistanceY", 1, 1, 1, 2, 14.0),
    Sketcher.Constraint("DistanceX", 0, 1, 0, 2, 10.5),
    Sketcher.Constraint("DistanceX", 2, 2, -1, 1, 6.0),
    Sketcher.Constraint("DistanceY", -1, 1, 0, 2, 111.6),
])
pocket11 = body.newObject("PartDesign::Pocket", "Pocket010")
pocket11.Profile = sketch13
pocket11.Type = "ThroughAll"

# Sketch on XZ plane
sketch14 = body.newObject("Sketcher::SketchObject", "Sketch013")
sketch14.AttachmentSupport = (doc.getObject("XZ_Plane"), [""])
sketch14.MapMode = "FlatFace"
sketch14.AttachmentOffset = App.Placement(App.Vector(0, 0, -8.5), App.Rotation())
sketch14.addGeometry(Part.Circle(App.Vector(0, 121.6, 0), App.Vector(0, 0, 1), 2), False)
sketch14.addConstraint([
    Sketcher.Constraint("PointOnObject", 0, 3, -2),
    Sketcher.Constraint("Diameter", 0, 4.1),
    Sketcher.Constraint("DistanceY", -1, 1, 0, 3, 121.6),
])
pocket12 = body.newObject("PartDesign::Pocket", "Pocket011")
pocket12.Profile = sketch14
pocket12.Type = "ThroughAll"
pocket12.Reversed = True

# Sketch on XZ plane
sketch15 = body.newObject("Sketcher::SketchObject", "Sketch014")
sketch15.AttachmentSupport = (doc.getObject("XZ_Plane"), [""])
sketch15.MapMode = "FlatFace"
sketch15.AttachmentOffset = App.Placement(App.Vector(0, 0, -8.5), App.Rotation())
sketch15.addGeometry([
    Part.ArcOfCircle(Part.Circle(App.Vector(0, 131.6, 0), App.Vector(0, 0, 1), 4.6), math.radians(-139), math.radians(-41)),
    Part.LineSegment(App.Vector(-3.5, 128.6, 0), App.Vector(-3.5, 131.6, 0)),
    Part.LineSegment(App.Vector(-3.5, 131.6, 0), App.Vector(3.5, 131.6, 0)),
    Part.LineSegment(App.Vector(3.5, 131.6, 0), App.Vector(3.5, 128.6, 0)),
], False)
sketch15.addConstraint([
    Sketcher.Constraint("Coincident", 0, 1, 1, 1),
    Sketcher.Constraint("Coincident", 1, 2, 2, 1),
    Sketcher.Constraint("Coincident", 2, 2, 3, 1),
    Sketcher.Constraint("Coincident", 3, 2, 0, 2),
    Sketcher.Constraint("Vertical", 1),
    Sketcher.Constraint("Horizontal", 2),
    Sketcher.Constraint("Vertical", 3),
    Sketcher.Constraint("Symmetric", 0, 1, 3, 2, -2),
    Sketcher.Constraint("Horizontal", 0, 3, 1, 2),
    Sketcher.Constraint("DistanceX", 2, 1, 2, 2, 7.0),
    Sketcher.Constraint("DistanceY", 1, 1, 1, 2, 3.0),
    Sketcher.Constraint("DistanceY", -1, 1, 0, 3, 131.6),
])
pocket13 = body.newObject("PartDesign::Pocket", "Pocket012")
pocket13.Profile = sketch15
pocket13.Length = 2
pocket13.Reversed = True
doc.recompute()

fillet = body.newObject("PartDesign::Fillet", "Fillet")
fillet.Base = (pocket13, edges_at(pocket13, [
    (-3.5, 7.5, 131.6),
    (3.5, 7.5, 131.6),
    (3.5, 7.5, 128.6),
    (-3.5, 7.5, 128.6),
]))
fillet.Radius = 1

doc.recompute()
